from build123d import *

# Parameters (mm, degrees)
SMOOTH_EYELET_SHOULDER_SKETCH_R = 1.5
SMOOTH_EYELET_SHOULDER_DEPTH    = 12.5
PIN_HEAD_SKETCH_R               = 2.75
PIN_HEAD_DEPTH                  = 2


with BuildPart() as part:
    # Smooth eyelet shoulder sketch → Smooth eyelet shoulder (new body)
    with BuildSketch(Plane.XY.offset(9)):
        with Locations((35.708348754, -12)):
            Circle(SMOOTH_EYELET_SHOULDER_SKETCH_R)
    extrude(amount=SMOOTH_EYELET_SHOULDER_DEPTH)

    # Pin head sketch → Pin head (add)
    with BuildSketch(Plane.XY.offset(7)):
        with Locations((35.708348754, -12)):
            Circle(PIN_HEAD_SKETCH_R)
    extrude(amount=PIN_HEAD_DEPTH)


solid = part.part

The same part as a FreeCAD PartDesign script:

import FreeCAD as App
import Part
import Sketcher
from FreeCAD import Vector
Q = App.Units.Quantity

doc = App.newDocument("Part")
body = doc.addObject("PartDesign::Body", "Body")

# Sketch on XY plane
sketch1 = body.newObject("Sketcher::SketchObject", "Sketch")
sketch1.AttachmentSupport = (doc.getObject("XY_Plane"), [""])
sketch1.MapMode = "FlatFace"
sketch1.AttachmentOffset = App.Placement(Vector(0, 0, 9), App.Rotation())
sketch1.addGeometry(Part.Circle(Vector(35.7, -12, 0), Vector(0, 0, 1), 1.5), False)
sketch1.addConstraint([
    Sketcher.Constraint("Diameter", 0, Q("3 mm")),
    Sketcher.Constraint("DistanceY", 0, 3, -1, 1, Q("12 mm")),
    Sketcher.Constraint("DistanceX", -1, 1, 0, 3, Q("35.708349 mm")),
])
pad1 = body.newObject("PartDesign::Pad", "Pad")
pad1.Profile = sketch1
pad1.Length = 12.5

# Sketch on XY plane
sketch2 = body.newObject("Sketcher::SketchObject", "Sketch001")
sketch2.AttachmentSupport = (doc.getObject("XY_Plane"), [""])
sketch2.MapMode = "FlatFace"
sketch2.AttachmentOffset = App.Placement(Vector(0, 0, 7), App.Rotation())
sketch2.addGeometry(Part.Circle(Vector(35.7, -12, 0), Vector(0, 0, 1), 2.8), False)
sketch2.addConstraint([
    Sketcher.Constraint("Diameter", 0, Q("5.5 mm")),
    Sketcher.Constraint("DistanceY", 0, 3, -1, 1, Q("12 mm")),
    Sketcher.Constraint("DistanceX", -1, 1, 0, 3, Q("35.708349 mm")),
])
pad2 = body.newObject("PartDesign::Pad", "Pad001")
pad2.Profile = sketch2
pad2.Length = 2

doc.recompute()
